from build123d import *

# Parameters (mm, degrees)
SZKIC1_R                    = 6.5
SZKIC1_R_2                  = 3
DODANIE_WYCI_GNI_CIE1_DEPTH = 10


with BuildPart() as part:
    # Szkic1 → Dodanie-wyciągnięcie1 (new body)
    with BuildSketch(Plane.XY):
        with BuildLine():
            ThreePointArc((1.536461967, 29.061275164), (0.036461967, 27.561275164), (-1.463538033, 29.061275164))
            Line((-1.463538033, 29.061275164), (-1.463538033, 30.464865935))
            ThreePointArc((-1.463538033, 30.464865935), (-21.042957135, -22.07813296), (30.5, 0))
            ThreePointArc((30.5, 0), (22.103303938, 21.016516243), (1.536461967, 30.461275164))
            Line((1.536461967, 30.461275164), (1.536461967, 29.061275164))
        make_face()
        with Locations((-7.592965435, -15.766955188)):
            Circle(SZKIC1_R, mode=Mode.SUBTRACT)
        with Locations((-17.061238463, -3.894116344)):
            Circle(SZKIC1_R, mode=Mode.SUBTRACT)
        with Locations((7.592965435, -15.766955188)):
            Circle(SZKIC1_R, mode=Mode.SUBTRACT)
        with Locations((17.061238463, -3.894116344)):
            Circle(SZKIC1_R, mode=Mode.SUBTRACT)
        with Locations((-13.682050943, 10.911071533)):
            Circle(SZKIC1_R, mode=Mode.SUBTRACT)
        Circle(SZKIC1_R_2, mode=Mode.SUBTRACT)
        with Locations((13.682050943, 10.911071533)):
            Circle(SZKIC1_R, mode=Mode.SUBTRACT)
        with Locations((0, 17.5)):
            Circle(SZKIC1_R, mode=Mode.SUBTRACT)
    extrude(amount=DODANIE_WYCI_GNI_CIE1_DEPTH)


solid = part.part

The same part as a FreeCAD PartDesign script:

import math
import FreeCAD as App
import Part
import Sketcher

doc = App.newDocument("Part")
body = doc.addObject("PartDesign::Body", "Body")

# Sketch on XY plane
sketch1 = body.newObject("Sketcher::SketchObject", "Sketch")
sketch1.AttachmentSupport = (doc.getObject("XY_Plane"), [""])
sketch1.MapMode = "FlatFace"
sketch1.addGeometry([
    Part.ArcOfCircle(Part.Circle(App.Vector(0, 29.1, 0), App.Vector(0, 0, 1), 1.5), math.radians(180), math.radians(360)),  # 0
    Part.LineSegment(App.Vector(-1.5, 29.1, 0), App.Vector(-1.5, 30.5, 0)),  # 1
    Part.ArcOfCircle(Part.Circle(App.Vector(0, 0, 0), App.Vector(0, 0, 1), 30.5), math.radians(93), math.radians(360)),  # 2
    Part.ArcOfCircle(Part.Circle(App.Vector(0, 0, 0), App.Vector(0, 0, 1), 30.5), math.radians(0), math.radians(87)),  # 3
    Part.LineSegment(App.Vector(1.5, 30.5, 0), App.Vector(1.5, 29.1, 0)),  # 4
    Part.Circle(App.Vector(-7.6, -15.8, 0), App.Vector(0, 0, 1), 6.5),  # 5
    Part.Circle(App.Vector(-17.1, -3.9, 0), App.Vector(0, 0, 1), 6.5),  # 6
    Part.Circle(App.Vector(7.6, -15.8, 0), App.Vector(0, 0, 1), 6.5),  # 7
    Part.Circle(App.Vector(0, 0, 0), App.Vector(0, 0, 1), 3),  # 8
    Part.Circle(App.Vector(17.1, -3.9, 0), App.Vector(0, 0, 1), 6.5),  # 9
    Part.Circle(App.Vector(-13.7, 10.9, 0), App.Vector(0, 0, 1), 6.5),  # 10
    Part.Circle(App.Vector(13.7, 10.9, 0), App.Vector(0, 0, 1), 6.5),  # 11
    Part.Circle(App.Vector(0, 17.5, 0), App.Vector(0, 0, 1), 6.5),  # 12
], False)
sketch1.addConstraint([
    Sketcher.Constraint("Tangent", 0, 1, 1, 1),
    Sketcher.Constraint("Coincident", 1, 2, 2, 1),
    Sketcher.Constraint("Tangent", 2, 2, 3, 1),
    Sketcher.Constraint("Coincident", 3, 2, 4, 1),
    Sketcher.Constraint("Tangent", 4, 2, 0, 2),
    Sketcher.Constraint("Vertical", 1),
    Sketcher.Constraint("Vertical", 4),
    Sketcher.Constraint("Coincident", 2, 3, -1, 1),
    Sketcher.Constraint("Coincident", 8, 3, -1, 1),
    Sketcher.Constraint("Equal", 2, 3),
    Sketcher.Constraint("Equal", 5, 6),
    Sketcher.Constraint("Equal", 6, 7),
    Sketcher.Constraint("Equal", 7, 9),
    Sketcher.Constraint("Equal", 9, 10),
    Sketcher.Constraint("Equal", 10, 11),
    Sketcher.Constraint("Equal", 11, 12),
    Sketcher.Constraint("Symmetric", 5, 3, 7, 3, -2),
    Sketcher.Constraint("Symmetric", 6, 3, 9, 3, -2),
    Sketcher.Constraint("Symmetric", 10, 3, 11, 3, -2),
    Sketcher.Constraint("PointOnObject", 12, 3, -2),
    Sketcher.Constraint("PointOnObject", 2, 2, -1),
    Sketcher.Constraint("Diameter", 5, 13.0),
    Sketcher.Constraint("Diameter", 8, 6.0),
    Sketcher.Constraint("Radius", 0, 1.5),
    Sketcher.Constraint("Radius", 2, 30.5),
    Sketcher.Constraint("DistanceY", 4, 2, 4, 1, 1.4),
    Sketcher.Constraint("DistanceY", -1, 1, 12, 3, 17.5),
    Sketcher.Constraint("DistanceY", 1, 1, 1, 2, 1.403591),
    Sketcher.Constraint("DistanceX", 6, 3, 0, 3, 17.0977),
    Sketcher.Constraint("DistanceX", 10, 3, -1, 1, 13.682051),
    Sketcher.Constraint("DistanceY", -1, 1, 10, 3, 10.911072),
    Sketcher.Constraint("DistanceY", 5, 3, 0, 3, 44.82823),
    Sketcher.Constraint("DistanceY", 5, 3, 6, 3, 11.872839),
    Sketcher.Constraint("DistanceX", 5, 3, 7, 3, 15.185931),
])
pad1 = body.newObject("PartDesign::Pad", "Pad")
pad1.Profile = sketch1
pad1.Length = 10

doc.recompute()
